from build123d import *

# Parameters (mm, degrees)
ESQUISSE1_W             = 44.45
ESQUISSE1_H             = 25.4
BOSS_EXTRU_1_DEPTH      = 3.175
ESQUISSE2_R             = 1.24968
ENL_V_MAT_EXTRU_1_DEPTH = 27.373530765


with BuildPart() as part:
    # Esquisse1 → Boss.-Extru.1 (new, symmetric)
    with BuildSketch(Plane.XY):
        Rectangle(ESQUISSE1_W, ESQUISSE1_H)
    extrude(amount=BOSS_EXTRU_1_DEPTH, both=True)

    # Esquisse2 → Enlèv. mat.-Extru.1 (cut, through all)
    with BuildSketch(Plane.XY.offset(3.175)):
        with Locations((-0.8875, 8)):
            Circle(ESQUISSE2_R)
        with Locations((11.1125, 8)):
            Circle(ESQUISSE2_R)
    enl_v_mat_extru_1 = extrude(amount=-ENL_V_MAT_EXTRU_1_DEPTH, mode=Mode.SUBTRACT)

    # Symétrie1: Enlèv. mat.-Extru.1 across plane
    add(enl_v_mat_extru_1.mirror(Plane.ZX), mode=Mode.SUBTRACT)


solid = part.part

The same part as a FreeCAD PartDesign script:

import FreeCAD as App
import Part
import Sketcher
from FreeCAD import Vector
Q = App.Units.Quantity

doc = App.newDocument("Part")
body = doc.addObject("PartDesign::Body", "Body")

sketch1 = body.newObject("Sketcher::SketchObject", "Sketch")
sketch1.AttachmentSupport = (doc.getObject("XY_Plane"), [""])
sketch1.MapMode = "FlatFace"
sketch1.addGeometry([
    Part.LineSegment(Vector(-22, 13, 0), Vector(-22, -13, 0)),
    Part.LineSegment(Vector(-22, -13, 0), Vector(22, -13, 0)),
    Part.LineSegment(Vector(22, -13, 0), Vector(22, 13, 0)),
    Part.LineSegment(Vector(22, 13, 0), Vector(-22, 13, 0)),
], False)
sketch1.addConstraint([
    Sketcher.Constraint("Coincident", 0, 2, 1, 1),
    Sketcher.Constraint("Coincident", 1, 2, 2, 1),
    Sketcher.Constraint("Coincident", 2, 2, 3, 1),
    Sketcher.Constraint("Coincident", 3, 2, 0, 1),
    Sketcher.Constraint("Vertical", 0),
    Sketcher.Constraint("Horizontal", 1),
    Sketcher.Constraint("Vertical", 2),
    Sketcher.Constraint("Horizontal", 3),
    Sketcher.Constraint("Symmetric", 0, 2, 2, 2, -1, 1),
    Sketcher.Constraint("DistanceY", 0, 2, 0, 1, Q("1 in")),
    Sketcher.Constraint("DistanceX", 1, 1, 1, 2, Q("1.75 in")),
])
pad1 = body.newObject("PartDesign::Pad", "Pad")
pad1.Profile = sketch1
pad1.Length = Q("0.25 in")
pad1.Midplane = True

sketch2 = body.newObject("Sketcher::SketchObject", "Sketch001")
sketch2.AttachmentSupport = (doc.getObject("XY_Plane"), [""])
sketch2.MapMode = "FlatFace"
sketch2.AttachmentOffset = App.Placement(Vector(0, 0, 0.125 * 25.4), App.Rotation())
sketch2.addGeometry([
    Part.Circle(Vector(-0.9, 8, 0), Vector(0, 0, 1), 1.2),
    Part.Circle(Vector(11.1, 8, 0), Vector(0, 0, 1), 1.2),
], False)
sketch2.addConstraint([
    Sketcher.Constraint("Equal", 0, 1),
    Sketcher.Constraint("Horizontal", 0, 3, 1, 3),
    Sketcher.Constraint("Diameter", 0, Q("0.0984 in")),
    Sketcher.Constraint("DistanceX", -1, 1, 1, 3, Q("0.4375 in")),
    Sketcher.Constraint("DistanceX", 0, 3, -1, 1, 0.8875),
    Sketcher.Constraint("DistanceY", -1, 1, 0, 3, 8.0),
])
pocket1 = body.newObject("PartDesign::Pocket", "Pocket")
pocket1.Profile = sketch2
pocket1.Type = "ThroughAll"
doc.recompute()

mirrored = body.newObject("PartDesign::Mirrored", "Mirrored")
mirrored.Originals = [pocket1]
mirrored.MirrorPlane = (doc.getObject("XZ_Plane"), [""])
body.Tip = mirrored

doc.recompute()
